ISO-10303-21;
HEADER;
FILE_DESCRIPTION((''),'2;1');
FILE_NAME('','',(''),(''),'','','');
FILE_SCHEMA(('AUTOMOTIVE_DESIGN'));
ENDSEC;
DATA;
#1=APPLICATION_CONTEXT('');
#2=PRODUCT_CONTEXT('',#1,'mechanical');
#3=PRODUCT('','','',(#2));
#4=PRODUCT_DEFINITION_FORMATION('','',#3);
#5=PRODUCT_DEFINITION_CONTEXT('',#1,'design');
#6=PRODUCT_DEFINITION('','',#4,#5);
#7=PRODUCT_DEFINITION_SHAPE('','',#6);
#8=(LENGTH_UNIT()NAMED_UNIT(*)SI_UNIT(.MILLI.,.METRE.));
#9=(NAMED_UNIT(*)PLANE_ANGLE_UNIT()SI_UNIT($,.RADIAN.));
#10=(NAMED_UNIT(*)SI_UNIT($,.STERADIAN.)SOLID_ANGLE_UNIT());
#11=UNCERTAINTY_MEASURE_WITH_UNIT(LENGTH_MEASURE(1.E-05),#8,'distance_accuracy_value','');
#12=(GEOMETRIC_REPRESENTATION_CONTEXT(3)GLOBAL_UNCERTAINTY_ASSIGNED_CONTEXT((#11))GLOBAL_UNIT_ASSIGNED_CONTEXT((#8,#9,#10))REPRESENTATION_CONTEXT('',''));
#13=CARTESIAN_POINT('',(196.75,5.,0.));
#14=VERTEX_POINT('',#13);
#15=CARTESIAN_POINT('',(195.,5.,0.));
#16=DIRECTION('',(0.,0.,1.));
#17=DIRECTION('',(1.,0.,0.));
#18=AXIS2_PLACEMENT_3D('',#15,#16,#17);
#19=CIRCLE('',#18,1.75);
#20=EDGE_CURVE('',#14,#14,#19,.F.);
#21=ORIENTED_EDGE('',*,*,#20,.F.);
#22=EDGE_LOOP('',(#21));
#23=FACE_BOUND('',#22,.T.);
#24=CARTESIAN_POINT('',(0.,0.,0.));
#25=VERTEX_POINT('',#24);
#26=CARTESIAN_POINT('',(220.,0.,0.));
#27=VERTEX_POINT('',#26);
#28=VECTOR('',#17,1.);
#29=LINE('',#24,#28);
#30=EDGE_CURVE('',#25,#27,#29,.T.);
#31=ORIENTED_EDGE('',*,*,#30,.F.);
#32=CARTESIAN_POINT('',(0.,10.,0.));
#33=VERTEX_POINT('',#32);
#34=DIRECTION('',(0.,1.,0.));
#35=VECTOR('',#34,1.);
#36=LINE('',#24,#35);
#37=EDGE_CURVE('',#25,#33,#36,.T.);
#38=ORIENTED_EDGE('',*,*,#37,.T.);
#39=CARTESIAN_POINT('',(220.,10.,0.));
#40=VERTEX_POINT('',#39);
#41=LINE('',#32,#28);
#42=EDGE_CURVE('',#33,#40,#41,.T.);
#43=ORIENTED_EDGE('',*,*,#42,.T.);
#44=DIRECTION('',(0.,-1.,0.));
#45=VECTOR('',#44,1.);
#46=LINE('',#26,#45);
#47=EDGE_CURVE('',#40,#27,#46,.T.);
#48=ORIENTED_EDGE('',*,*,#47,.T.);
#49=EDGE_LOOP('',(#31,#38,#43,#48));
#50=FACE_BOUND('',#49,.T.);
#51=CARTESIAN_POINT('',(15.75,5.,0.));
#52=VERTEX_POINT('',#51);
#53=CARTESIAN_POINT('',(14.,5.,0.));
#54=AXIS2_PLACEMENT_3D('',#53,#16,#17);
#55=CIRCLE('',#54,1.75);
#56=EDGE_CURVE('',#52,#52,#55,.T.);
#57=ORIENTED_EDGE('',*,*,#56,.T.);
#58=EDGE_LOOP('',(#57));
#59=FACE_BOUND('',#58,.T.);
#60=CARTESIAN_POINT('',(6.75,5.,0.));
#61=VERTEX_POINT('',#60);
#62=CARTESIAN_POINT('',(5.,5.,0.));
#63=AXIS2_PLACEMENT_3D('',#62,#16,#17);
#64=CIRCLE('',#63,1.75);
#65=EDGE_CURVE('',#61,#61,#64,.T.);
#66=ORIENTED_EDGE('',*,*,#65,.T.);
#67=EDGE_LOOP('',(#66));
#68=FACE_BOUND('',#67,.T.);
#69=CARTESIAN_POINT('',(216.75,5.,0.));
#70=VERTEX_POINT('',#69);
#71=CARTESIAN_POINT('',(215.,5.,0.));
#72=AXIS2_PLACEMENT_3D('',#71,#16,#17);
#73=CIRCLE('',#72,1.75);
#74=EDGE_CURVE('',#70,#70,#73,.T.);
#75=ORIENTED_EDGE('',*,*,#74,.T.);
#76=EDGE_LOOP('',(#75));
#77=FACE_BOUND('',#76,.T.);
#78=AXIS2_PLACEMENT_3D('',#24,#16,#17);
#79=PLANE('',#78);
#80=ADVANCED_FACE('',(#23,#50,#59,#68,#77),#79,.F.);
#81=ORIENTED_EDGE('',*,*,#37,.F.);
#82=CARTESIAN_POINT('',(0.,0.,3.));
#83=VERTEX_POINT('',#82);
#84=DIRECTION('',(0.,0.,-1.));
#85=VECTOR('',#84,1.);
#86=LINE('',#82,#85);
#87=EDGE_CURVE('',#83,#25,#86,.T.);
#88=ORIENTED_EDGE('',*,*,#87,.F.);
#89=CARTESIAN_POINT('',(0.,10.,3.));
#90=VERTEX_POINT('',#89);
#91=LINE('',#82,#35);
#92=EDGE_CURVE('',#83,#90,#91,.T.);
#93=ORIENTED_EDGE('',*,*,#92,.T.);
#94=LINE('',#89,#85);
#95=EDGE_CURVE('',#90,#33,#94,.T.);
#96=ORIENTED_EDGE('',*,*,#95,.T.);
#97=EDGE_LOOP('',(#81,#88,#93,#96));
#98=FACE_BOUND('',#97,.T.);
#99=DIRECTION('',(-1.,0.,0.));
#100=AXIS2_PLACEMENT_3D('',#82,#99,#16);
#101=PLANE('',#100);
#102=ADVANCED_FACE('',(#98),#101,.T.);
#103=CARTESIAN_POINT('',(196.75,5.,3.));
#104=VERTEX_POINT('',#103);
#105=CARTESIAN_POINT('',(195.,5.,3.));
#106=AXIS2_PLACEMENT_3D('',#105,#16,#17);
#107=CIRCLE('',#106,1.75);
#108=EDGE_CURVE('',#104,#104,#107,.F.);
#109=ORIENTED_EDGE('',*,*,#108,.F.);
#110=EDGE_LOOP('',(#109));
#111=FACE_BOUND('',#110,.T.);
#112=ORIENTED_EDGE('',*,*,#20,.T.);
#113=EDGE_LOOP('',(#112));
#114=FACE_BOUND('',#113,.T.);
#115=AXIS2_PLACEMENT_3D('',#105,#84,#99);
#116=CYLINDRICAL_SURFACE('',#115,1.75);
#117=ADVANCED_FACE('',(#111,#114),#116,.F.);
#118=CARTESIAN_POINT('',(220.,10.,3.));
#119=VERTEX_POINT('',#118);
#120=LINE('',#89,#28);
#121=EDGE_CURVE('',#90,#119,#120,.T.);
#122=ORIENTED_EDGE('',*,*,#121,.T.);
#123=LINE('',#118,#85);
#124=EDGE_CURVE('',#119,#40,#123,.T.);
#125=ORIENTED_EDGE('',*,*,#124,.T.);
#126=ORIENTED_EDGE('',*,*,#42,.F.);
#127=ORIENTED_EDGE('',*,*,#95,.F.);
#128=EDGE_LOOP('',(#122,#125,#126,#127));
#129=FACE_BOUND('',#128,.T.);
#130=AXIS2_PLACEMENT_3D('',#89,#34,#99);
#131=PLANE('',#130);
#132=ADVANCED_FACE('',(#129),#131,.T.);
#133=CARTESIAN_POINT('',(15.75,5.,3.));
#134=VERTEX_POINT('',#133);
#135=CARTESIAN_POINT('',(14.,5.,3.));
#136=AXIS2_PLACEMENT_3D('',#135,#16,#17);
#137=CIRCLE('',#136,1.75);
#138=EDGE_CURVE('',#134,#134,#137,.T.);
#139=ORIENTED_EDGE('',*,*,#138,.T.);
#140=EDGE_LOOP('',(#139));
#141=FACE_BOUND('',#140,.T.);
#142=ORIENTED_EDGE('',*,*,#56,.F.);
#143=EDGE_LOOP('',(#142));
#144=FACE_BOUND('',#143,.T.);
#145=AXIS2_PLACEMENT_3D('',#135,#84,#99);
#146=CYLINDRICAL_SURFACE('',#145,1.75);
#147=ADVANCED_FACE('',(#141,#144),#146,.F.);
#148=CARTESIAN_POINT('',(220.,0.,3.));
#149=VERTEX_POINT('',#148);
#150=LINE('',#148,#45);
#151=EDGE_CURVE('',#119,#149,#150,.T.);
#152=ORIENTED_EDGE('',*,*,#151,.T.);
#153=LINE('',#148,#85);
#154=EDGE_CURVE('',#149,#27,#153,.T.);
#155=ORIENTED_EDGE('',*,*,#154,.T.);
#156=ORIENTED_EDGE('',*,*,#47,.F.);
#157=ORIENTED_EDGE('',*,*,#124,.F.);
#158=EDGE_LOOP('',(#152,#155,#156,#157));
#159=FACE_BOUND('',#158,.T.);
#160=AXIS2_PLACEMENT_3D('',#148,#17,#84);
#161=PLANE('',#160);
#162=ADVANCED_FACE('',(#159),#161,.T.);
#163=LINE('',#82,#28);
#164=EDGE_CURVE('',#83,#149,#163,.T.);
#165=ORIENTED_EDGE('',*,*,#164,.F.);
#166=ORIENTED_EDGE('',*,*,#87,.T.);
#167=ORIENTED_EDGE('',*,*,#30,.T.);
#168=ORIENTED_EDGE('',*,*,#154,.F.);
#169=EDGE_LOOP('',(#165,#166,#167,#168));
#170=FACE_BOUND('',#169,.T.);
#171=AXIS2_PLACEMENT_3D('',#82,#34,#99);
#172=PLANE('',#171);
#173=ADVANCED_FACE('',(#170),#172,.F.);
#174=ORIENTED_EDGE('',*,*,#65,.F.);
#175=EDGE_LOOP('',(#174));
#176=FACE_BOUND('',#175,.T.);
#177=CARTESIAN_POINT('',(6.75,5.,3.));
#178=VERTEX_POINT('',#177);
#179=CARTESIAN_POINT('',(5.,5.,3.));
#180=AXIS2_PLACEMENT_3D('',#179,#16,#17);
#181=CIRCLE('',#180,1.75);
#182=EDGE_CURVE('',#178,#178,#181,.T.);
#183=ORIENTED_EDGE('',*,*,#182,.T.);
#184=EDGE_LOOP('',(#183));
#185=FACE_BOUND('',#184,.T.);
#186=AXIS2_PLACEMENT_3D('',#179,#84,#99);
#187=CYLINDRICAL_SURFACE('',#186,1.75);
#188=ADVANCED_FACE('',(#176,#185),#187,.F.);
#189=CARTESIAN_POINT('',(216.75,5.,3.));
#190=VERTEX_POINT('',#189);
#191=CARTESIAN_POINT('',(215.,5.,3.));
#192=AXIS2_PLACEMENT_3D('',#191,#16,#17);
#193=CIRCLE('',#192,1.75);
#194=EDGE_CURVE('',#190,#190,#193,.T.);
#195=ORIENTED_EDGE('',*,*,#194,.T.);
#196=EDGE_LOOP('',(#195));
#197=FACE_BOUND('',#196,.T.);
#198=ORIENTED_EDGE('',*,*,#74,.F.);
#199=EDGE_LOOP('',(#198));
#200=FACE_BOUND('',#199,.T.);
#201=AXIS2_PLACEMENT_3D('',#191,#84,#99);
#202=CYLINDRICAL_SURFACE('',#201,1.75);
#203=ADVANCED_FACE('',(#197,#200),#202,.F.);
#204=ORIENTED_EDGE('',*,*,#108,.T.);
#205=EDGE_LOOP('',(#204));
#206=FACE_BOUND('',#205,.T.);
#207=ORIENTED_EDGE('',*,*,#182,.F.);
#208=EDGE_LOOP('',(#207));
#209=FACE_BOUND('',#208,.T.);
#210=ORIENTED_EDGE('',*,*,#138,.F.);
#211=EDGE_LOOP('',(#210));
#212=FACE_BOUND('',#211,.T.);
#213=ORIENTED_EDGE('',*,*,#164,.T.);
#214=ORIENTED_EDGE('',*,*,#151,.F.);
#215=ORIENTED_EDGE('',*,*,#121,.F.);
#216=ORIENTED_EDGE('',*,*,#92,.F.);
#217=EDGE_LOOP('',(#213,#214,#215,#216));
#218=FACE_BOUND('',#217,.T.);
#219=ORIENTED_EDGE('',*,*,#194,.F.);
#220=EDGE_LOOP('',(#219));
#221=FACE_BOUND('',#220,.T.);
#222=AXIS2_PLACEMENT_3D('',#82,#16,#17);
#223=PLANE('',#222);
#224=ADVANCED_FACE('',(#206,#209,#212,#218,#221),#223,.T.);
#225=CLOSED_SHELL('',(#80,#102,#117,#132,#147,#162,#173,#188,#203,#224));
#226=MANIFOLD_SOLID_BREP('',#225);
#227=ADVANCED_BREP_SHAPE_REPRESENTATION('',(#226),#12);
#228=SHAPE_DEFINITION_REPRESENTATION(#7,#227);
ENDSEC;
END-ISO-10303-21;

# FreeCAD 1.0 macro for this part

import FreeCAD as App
import Part
import Sketcher

V = App.Vector
Q = App.Units.Quantity


def add_polygon(sketch, points):
    """Adds a closed chain of lines whose ends are joined by coincident constraints."""
    first, n = sketch.GeometryCount, len(points)
    for a, b in zip(points, points[1:] + points[:1]):
        sketch.addGeometry(Part.LineSegment(App.Vector(*a, 0), App.Vector(*b, 0)), False)
    for i in range(n):
        sketch.addConstraint(Sketcher.Constraint("Coincident", first + i, 2, first + (i + 1) % n, 1))

doc = App.newDocument("Part")
body = doc.addObject("PartDesign::Body", "Body")

# Sketch on XY plane
sketch1 = body.newObject("Sketcher::SketchObject", "Sketch")
sketch1.AttachmentSupport = (doc.getObject("XY_Plane"), [""])
sketch1.MapMode = "FlatFace"
add_polygon(sketch1, [(0, 10), (0, 0), (220, 0), (220, 10)])  # lines 0-3
sketch1.addGeometry(Part.Circle(V(5, 5, 0), V(0, 0, 1), 1.8), False)  # 4
sketch1.addGeometry(Part.Circle(V(14, 5, 0), V(0, 0, 1), 1.8), False)  # 5
sketch1.addGeometry(Part.Circle(V(195, 5, 0), V(0, 0, 1), 1.8), False)  # 6
sketch1.addGeometry(Part.Circle(V(215, 5, 0), V(0, 0, 1), 1.8), False)  # 7
sketch1.addConstraint([
    Sketcher.Constraint("Vertical", 0),
    Sketcher.Constraint("Horizontal", 1),
    Sketcher.Constraint("Vertical", 2),
    Sketcher.Constraint("Horizontal", 3),
    Sketcher.Constraint("Coincident", 0, 2, -1, 1),
    Sketcher.Constraint("Equal", 4, 5),
    Sketcher.Constraint("Equal", 5, 6),
    Sketcher.Constraint("Equal", 6, 7),
    Sketcher.Constraint("Horizontal", 4, 3, 5, 3),
    Sketcher.Constraint("Horizontal", 5, 3, 6, 3),
    Sketcher.Constraint("Horizontal", 6, 3, 7, 3),
    Sketcher.Constraint("Diameter", 4, Q("3.5 mm")),
    Sketcher.Constraint("DistanceX", 1, 1, 1, 2, Q("220 mm")),
    Sketcher.Constraint("DistanceY", 0, 2, 0, 1, Q("10 mm")),
    Sketcher.Constraint("DistanceX", -1, 1, 4, 3, Q("5 mm")),
    Sketcher.Constraint("DistanceY", -1, 1, 4, 3, Q("5 mm")),
    Sketcher.Constraint("DistanceX", -1, 1, 5, 3, Q("14 mm")),
    Sketcher.Constraint("DistanceX", -1, 1, 6, 3, Q("195 mm")),
    Sketcher.Constraint("DistanceX", -1, 1, 7, 3, Q("215 mm")),
])
pad1 = body.newObject("PartDesign::Pad", "Pad")
pad1.Profile = sketch1
pad1.Length = 3

doc.recompute()
